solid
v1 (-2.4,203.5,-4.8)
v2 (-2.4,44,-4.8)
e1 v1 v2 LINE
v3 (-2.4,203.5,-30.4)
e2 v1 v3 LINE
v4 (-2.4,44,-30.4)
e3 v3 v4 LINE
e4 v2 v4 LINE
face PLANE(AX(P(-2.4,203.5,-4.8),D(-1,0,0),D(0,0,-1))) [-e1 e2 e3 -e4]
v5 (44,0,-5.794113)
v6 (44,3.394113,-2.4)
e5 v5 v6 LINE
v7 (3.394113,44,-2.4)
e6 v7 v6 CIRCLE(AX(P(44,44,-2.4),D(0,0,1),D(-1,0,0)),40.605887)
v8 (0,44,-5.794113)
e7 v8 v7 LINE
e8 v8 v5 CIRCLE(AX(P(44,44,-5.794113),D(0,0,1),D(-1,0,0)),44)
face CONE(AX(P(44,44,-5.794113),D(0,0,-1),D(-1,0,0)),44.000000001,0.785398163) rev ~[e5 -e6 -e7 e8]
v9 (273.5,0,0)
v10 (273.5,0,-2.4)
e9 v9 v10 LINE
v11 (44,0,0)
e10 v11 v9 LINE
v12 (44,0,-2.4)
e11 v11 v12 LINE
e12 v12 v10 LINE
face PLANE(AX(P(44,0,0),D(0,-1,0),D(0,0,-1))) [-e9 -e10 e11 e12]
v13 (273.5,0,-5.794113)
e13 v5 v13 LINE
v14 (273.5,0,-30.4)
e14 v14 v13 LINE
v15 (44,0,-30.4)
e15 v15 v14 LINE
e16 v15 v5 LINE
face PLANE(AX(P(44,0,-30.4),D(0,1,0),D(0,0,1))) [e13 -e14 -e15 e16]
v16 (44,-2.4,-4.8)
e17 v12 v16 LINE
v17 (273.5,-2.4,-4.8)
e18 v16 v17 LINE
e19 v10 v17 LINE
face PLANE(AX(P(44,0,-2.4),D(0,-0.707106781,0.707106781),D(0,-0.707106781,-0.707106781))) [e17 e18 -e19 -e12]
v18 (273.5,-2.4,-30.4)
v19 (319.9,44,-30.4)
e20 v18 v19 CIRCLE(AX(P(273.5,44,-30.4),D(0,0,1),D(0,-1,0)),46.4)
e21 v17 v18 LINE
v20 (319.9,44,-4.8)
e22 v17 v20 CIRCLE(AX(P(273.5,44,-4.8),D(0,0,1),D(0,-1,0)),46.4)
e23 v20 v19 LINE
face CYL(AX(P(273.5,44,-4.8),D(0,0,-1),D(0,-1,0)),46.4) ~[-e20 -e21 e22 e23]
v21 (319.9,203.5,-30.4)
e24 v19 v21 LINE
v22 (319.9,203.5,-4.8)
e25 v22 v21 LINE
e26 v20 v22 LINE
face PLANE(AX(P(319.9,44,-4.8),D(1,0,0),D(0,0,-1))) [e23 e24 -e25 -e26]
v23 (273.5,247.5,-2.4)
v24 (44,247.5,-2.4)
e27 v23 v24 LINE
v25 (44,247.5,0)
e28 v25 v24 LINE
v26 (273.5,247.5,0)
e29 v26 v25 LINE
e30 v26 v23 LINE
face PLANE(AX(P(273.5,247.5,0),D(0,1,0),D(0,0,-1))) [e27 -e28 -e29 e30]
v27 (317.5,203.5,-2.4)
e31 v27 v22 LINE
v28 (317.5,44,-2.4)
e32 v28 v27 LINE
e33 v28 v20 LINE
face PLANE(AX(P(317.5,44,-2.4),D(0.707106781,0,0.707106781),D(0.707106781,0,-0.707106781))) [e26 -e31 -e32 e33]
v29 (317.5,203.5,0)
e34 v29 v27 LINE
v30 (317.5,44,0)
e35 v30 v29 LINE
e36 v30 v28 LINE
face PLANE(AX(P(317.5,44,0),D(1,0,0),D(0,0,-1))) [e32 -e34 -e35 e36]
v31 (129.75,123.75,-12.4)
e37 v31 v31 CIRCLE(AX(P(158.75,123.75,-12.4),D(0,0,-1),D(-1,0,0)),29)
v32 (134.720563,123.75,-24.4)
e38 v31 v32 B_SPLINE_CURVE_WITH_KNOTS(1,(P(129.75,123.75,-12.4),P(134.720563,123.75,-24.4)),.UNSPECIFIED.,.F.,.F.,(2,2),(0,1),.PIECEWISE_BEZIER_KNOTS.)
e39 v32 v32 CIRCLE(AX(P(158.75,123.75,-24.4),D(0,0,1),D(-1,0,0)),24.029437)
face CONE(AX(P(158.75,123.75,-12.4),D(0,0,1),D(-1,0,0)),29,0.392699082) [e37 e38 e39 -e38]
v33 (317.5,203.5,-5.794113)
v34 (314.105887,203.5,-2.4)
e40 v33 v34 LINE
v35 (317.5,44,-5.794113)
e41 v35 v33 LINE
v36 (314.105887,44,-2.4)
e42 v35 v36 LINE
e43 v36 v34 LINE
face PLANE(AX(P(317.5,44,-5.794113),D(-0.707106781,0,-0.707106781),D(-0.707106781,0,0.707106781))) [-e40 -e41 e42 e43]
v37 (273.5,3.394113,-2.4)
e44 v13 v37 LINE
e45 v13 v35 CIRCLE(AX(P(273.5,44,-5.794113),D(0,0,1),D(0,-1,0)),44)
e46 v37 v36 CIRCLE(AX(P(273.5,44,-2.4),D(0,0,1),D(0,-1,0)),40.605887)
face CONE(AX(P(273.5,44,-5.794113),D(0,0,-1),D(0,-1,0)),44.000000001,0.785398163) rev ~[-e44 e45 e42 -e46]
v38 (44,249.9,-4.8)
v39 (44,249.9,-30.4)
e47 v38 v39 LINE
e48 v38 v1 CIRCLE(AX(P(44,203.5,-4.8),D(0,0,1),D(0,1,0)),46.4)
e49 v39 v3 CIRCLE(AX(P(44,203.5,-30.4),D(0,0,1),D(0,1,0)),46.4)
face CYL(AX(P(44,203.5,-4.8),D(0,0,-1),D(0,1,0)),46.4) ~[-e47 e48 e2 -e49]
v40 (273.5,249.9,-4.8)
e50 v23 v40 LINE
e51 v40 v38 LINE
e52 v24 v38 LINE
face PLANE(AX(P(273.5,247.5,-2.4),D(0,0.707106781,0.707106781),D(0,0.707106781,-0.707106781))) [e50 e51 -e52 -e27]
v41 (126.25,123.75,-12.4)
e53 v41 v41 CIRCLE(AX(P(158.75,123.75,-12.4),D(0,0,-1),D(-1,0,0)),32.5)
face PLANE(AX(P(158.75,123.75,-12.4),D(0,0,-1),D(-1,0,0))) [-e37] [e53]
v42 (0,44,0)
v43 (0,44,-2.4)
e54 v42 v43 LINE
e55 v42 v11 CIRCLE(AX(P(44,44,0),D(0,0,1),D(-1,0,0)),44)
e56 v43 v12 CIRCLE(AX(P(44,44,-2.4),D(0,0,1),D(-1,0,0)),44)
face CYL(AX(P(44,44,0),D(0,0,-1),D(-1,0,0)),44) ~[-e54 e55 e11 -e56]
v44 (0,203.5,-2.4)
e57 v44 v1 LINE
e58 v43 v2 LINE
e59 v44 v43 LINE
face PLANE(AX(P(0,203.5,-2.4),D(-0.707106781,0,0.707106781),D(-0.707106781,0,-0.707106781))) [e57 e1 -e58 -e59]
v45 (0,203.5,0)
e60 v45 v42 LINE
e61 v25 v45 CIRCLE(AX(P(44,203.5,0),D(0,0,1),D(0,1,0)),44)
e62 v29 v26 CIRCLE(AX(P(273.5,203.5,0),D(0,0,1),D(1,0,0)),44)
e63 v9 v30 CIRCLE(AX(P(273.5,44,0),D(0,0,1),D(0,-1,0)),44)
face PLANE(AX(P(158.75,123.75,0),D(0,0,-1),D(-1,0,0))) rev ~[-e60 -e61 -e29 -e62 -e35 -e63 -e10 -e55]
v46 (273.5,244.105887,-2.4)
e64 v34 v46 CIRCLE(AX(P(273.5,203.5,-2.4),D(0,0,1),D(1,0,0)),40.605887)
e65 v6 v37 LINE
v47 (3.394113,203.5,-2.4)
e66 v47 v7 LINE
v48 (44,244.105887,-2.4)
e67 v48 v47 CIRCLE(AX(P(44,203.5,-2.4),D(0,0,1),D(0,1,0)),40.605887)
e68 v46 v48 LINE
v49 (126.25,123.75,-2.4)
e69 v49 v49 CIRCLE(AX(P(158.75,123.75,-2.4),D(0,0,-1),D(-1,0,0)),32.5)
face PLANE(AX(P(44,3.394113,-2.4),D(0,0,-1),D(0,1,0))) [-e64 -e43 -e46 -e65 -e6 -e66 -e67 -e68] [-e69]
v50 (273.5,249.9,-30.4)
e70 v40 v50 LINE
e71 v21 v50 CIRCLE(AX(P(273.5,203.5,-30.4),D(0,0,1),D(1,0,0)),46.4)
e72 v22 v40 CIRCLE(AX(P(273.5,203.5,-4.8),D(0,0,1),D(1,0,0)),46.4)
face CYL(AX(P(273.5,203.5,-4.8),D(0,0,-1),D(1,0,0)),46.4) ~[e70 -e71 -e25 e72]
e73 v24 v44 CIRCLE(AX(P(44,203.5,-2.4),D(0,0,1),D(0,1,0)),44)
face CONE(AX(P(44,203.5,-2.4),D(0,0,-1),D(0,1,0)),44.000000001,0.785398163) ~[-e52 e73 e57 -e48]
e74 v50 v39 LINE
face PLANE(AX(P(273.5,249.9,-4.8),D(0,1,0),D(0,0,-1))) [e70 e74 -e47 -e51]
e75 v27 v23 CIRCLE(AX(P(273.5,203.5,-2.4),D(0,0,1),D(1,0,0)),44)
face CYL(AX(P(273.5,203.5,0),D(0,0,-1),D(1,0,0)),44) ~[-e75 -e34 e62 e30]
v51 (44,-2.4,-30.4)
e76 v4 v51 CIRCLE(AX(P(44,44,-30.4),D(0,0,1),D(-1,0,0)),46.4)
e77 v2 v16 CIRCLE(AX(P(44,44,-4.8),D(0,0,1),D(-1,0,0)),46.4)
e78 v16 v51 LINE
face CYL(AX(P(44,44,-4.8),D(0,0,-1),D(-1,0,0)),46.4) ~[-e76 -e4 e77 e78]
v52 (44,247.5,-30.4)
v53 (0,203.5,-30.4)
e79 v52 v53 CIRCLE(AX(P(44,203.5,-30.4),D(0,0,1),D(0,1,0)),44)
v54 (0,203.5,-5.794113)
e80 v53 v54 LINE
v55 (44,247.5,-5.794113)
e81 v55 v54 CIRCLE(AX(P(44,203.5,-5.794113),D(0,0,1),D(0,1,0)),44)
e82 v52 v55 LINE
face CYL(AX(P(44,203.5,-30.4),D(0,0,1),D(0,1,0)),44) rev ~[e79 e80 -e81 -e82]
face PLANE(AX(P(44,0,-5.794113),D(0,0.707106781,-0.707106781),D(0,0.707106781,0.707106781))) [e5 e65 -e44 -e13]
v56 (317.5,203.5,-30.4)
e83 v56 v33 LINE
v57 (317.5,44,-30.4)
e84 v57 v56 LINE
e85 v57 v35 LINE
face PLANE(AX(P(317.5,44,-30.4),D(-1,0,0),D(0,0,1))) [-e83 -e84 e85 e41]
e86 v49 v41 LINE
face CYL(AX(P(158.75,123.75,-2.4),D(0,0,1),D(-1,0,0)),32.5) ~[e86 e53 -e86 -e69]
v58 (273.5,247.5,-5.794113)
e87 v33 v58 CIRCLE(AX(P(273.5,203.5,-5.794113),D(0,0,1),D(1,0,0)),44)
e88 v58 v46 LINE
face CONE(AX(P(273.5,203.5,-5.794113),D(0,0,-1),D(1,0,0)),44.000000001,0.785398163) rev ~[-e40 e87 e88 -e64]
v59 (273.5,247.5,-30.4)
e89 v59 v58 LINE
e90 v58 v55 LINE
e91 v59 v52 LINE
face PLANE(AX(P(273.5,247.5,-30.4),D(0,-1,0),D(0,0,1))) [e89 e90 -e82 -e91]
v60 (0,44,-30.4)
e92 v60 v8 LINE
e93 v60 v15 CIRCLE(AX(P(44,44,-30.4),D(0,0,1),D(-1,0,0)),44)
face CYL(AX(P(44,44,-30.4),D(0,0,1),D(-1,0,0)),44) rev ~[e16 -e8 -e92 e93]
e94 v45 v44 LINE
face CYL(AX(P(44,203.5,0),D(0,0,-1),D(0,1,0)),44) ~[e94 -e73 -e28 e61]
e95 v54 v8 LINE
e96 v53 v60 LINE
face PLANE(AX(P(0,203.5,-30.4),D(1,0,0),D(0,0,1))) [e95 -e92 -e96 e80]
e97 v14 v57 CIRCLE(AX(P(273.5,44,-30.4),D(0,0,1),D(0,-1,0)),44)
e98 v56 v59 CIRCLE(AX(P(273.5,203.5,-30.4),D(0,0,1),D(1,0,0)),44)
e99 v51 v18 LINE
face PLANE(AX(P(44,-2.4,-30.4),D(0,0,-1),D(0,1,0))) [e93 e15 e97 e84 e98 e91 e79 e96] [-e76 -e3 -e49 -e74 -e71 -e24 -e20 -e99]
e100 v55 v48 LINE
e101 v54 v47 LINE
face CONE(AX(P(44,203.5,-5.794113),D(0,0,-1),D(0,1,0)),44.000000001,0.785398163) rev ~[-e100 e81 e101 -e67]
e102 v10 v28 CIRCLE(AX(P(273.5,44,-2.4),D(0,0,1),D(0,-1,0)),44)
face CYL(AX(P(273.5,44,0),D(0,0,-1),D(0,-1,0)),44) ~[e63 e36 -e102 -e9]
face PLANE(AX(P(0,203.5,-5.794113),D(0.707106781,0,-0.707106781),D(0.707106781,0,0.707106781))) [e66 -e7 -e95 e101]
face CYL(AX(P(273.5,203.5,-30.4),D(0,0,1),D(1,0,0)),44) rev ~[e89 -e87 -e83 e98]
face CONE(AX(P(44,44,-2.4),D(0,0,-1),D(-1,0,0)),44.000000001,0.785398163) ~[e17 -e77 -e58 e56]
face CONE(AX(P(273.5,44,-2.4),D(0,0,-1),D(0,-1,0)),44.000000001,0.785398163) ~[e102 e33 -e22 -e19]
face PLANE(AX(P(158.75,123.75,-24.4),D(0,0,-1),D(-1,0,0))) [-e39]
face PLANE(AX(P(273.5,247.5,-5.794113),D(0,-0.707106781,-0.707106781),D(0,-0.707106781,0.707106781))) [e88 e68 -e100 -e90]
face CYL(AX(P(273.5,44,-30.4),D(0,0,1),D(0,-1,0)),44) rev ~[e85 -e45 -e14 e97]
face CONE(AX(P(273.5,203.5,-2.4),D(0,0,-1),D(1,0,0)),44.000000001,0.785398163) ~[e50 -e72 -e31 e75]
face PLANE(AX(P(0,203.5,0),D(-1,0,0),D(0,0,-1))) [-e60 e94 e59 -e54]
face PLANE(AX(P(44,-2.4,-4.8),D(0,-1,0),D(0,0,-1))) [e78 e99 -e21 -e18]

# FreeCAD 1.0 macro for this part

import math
import FreeCAD as App
import Part
import Sketcher
Q = App.Units.Quantity

doc = App.newDocument("Part")
params = doc.addObject("Spreadsheet::Sheet", "Params")
for row, (alias, value) in enumerate([
    ("sketch1_width", "7 mm"),
    ("sketch1_width2", "2.4 mm"),
    ("sketch1_height", "25.6 mm"),
    ("sketch1_length", "4.8 mm"),
    ("sketch2_radius", "44 mm"),
    ("sketch2_width", "229.5 mm"),
    ("sketch2_height", "159.5 mm"),
    ("sketch3_radius", "37 mm"),
    ("sketch3_width", "229.5 mm"),
    ("sketch3_height", "159.5 mm"),
    ("pad1_length", "2.4 mm"),
    ("sketch4_diameter", "65 mm"),
    ("pad2_length", "10 mm"),
    ("sketch5_diameter", "58 mm"),
    ("pad3_length", "12 mm"),
    ("pad3_taper", "-22.5 deg"),
], start=1):
    params.set(f"A{row}", alias)
    params.set(f"B{row}", "=" + value)
    params.setAlias(f"B{row}", alias)

body = doc.addObject("PartDesign::Body", "Body")

# Sketch on YZ plane
sketch1 = body.newObject("Sketcher::SketchObject", "Sketch")
sketch1.AttachmentSupport = (doc.getObject("YZ_Plane"), [""])
sketch1.MapMode = "FlatFace"
sketch1.AttachmentOffset = App.Placement(App.Vector(0, 0, 44), App.Rotation())
sketch1.addGeometry(Part.LineSegment(App.Vector(0, 0, 0), App.Vector(0, -2.4, 0)), False)
sketch1.addGeometry(Part.LineSegment(App.Vector(0, -2.4, 0), App.Vector(-2.4, -4.8, 0)), False)
sketch1.addGeometry(Part.LineSegment(App.Vector(-2.4, -4.8, 0), App.Vector(-2.4, -30.4, 0)), False)
sketch1.addGeometry(Part.LineSegment(App.Vector(-2.4, -30.4, 0), App.Vector(0, -30.4, 0)), False)
sketch1.addGeometry(Part.LineSegment(App.Vector(0, -30.4, 0), App.Vector(0, -5.8, 0)), False)
sketch1.addGeometry(Part.LineSegment(App.Vector(0, -5.8, 0), App.Vector(3.4, -2.4, 0)), False)
sketch1.addGeometry(Part.LineSegment(App.Vector(3.4, -2.4, 0), App.Vector(7, -2.4, 0)), False)
sketch1.addGeometry(Part.LineSegment(App.Vector(7, -2.4, 0), App.Vector(7, 0, 0)), False)
sketch1.addGeometry(Part.LineSegment(App.Vector(7, 0, 0), App.Vector(0, 0, 0)), False)
sketch1.addConstraint(Sketcher.Constraint("Coincident", 0, 2, 1, 1))
sketch1.addConstraint(Sketcher.Constraint("Coincident", 1, 2, 2, 1))
sketch1.addConstraint(Sketcher.Constraint("Coincident", 2, 2, 3, 1))
sketch1.addConstraint(Sketcher.Constraint("Coincident", 3, 2, 4, 1))
sketch1.addConstraint(Sketcher.Constraint("Coincident", 4, 2, 5, 1))
sketch1.addConstraint(Sketcher.Constraint("Coincident", 5, 2, 6, 1))
sketch1.addConstraint(Sketcher.Constraint("Coincident", 6, 2, 7, 1))
sketch1.addConstraint(Sketcher.Constraint("Coincident", 7, 2, 8, 1))
sketch1.addConstraint(Sketcher.Constraint("Coincident", 8, 2, 0, 1))
sketch1.addConstraint(Sketcher.Constraint("Vertical", 0))
sketch1.addConstraint(Sketcher.Constraint("Vertical", 2))
sketch1.addConstraint(Sketcher.Constraint("Horizontal", 3))
sketch1.addConstraint(Sketcher.Constraint("Vertical", 4))
sketch1.addConstraint(Sketcher.Constraint("Horizontal", 6))
sketch1.addConstraint(Sketcher.Constraint("Vertical", 7))
sketch1.addConstraint(Sketcher.Constraint("Horizontal", 8))
sketch1.addConstraint(Sketcher.Constraint("Coincident", 8, 2, -1, 1))
sketch1.addConstraint(Sketcher.Constraint("PointOnObject", 3, 2, -2))
sketch1.addConstraint(Sketcher.Constraint("Parallel", 1, 5))
sketch1.addConstraint(Sketcher.Constraint("Horizontal", 0, 2, 5, 2))
sketch1.addConstraint(Sketcher.Constraint("Equal", 3, 0))
sketch1.addConstraint(Sketcher.Constraint("DistanceX", 8, 2, 8, 1, Q("7 mm")))
sketch1.addConstraint(Sketcher.Constraint("Angle", 1, Q("-135 deg")))
sketch1.addConstraint(Sketcher.Constraint("DistanceX", 3, 1, 3, 2, Q("2.4 mm")))
sketch1.addConstraint(Sketcher.Constraint("DistanceY", 2, 2, 2, 1, Q("25.6 mm")))
sketch1.addConstraint(Sketcher.Constraint("Distance", 5, Q("4.8 mm")))
sketch1.setExpression("Constraints[21]", "Params.sketch1_width")
sketch1.setExpression("Constraints[23]", "Params.sketch1_width2")
sketch1.setExpression("Constraints[24]", "Params.sketch1_height")
sketch1.setExpression("Constraints[25]", "Params.sketch1_length")

# Sketch on XY plane
sketch2 = body.newObject("Sketcher::SketchObject", "Sketch001")
sketch2.AttachmentSupport = (doc.getObject("XY_Plane"), [""])
sketch2.MapMode = "FlatFace"
sketch2.addGeometry(Part.LineSegment(App.Vector(44, 0, 0), App.Vector(274, 0, 0)), False)
sketch2.addGeometry(Part.ArcOfCircle(Part.Circle(App.Vector(273, 44, 0), App.Vector(0, 0, 1), 44), math.radians(-90), math.radians(0)), False)
sketch2.addGeometry(Part.LineSegment(App.Vector(318, 44, 0), App.Vector(318, 204, 0)), False)
sketch2.addGeometry(Part.ArcOfCircle(Part.Circle(App.Vector(273, 203, 0), App.Vector(0, 0, 1), 44), math.radians(0), math.radians(90)), False)
sketch2.addGeometry(Part.LineSegment(App.Vector(274, 248, 0), App.Vector(44, 248, 0)), False)
sketch2.addGeometry(Part.ArcOfCircle(Part.Circle(App.Vector(44, 203, 0), App.Vector(0, 0, 1), 44), math.radians(90), math.radians(180)), False)
sketch2.addGeometry(Part.LineSegment(App.Vector(0, 204, 0), App.Vector(0, 44, 0)), False)
sketch2.addGeometry(Part.ArcOfCircle(Part.Circle(App.Vector(44, 44, 0), App.Vector(0, 0, 1), 44), math.radians(-180), math.radians(-90)), False)
sketch2.addConstraint(Sketcher.Constraint("Tangent", 0, 2, 1, 1))
sketch2.addConstraint(Sketcher.Constraint("Tangent", 1, 2, 2, 1))
sketch2.addConstraint(Sketcher.Constraint("Tangent", 2, 2, 3, 1))
sketch2.addConstraint(Sketcher.Constraint("Tangent", 3, 2, 4, 1))
sketch2.addConstraint(Sketcher.Constraint("Tangent", 4, 2, 5, 1))
sketch2.addConstraint(Sketcher.Constraint("Tangent", 5, 2, 6, 1))
sketch2.addConstraint(Sketcher.Constraint("Tangent", 6, 2, 7, 1))
sketch2.addConstraint(Sketcher.Constraint("Tangent", 7, 2, 0, 1))
sketch2.addConstraint(Sketcher.Constraint("Horizontal", 0))
sketch2.addConstraint(Sketcher.Constraint("Vertical", 2))
sketch2.addConstraint(Sketcher.Constraint("Horizontal", 4))
sketch2.addConstraint(Sketcher.Constraint("Vertical", 6))
sketch2.addConstraint(Sketcher.Constraint("Equal", 1, 3))
sketch2.addConstraint(Sketcher.Constraint("Equal", 3, 5))
sketch2.addConstraint(Sketcher.Constraint("Equal", 5, 7))
sketch2.addConstraint(Sketcher.Constraint("PointOnObject", 0, 2, -1))
sketch2.addConstraint(Sketcher.Constraint("PointOnObject", 5, 2, -2))
sketch2.addConstraint(Sketcher.Constraint("Radius", 1, Q("44 mm")))
sketch2.addConstraint(Sketcher.Constraint("DistanceX", 0, 1, 0, 2, Q("229.5 mm")))
sketch2.addConstraint(Sketcher.Constraint("DistanceY", 2, 1, 2, 2, Q("159.5 mm")))
sketch2.setExpression("Constraints[17]", "Params.sketch2_radius")
sketch2.setExpression("Constraints[18]", "Params.sketch2_width")
sketch2.setExpression("Constraints[19]", "Params.sketch2_height")
doc.recompute()

additivepipe = body.newObject("PartDesign::AdditivePipe", "AdditivePipe")
additivepipe.Profile = sketch1
additivepipe.Spine = (sketch2, ["Edge1", "Edge2", "Edge3", "Edge4", "Edge5", "Edge6", "Edge7", "Edge8"])

# Sketch on XY plane
sketch3 = body.newObject("Sketcher::SketchObject", "Sketch002")
sketch3.AttachmentSupport = (doc.getObject("XY_Plane"), [""])
sketch3.MapMode = "FlatFace"
sketch3.addGeometry(Part.LineSegment(App.Vector(274, 240, 0), App.Vector(44, 240, 0)), False)
sketch3.addGeometry(Part.ArcOfCircle(Part.Circle(App.Vector(44, 204, 0), App.Vector(0, 0, 1), 37), math.radians(90), math.radians(180)), False)
sketch3.addGeometry(Part.LineSegment(App.Vector(7, 204, 0), App.Vector(7, 44, 0)), False)
sketch3.addGeometry(Part.ArcOfCircle(Part.Circle(App.Vector(44, 44, 0), App.Vector(0, 0, 1), 37), math.radians(180), math.radians(270)), False)
sketch3.addGeometry(Part.LineSegment(App.Vector(44, 7, 0), App.Vector(274, 7, 0)), False)
sketch3.addGeometry(Part.ArcOfCircle(Part.Circle(App.Vector(274, 44, 0), App.Vector(0, 0, 1), 37), math.radians(-90), math.radians(0)), False)
sketch3.addGeometry(Part.LineSegment(App.Vector(310, 44, 0), App.Vector(310, 204, 0)), False)
sketch3.addGeometry(Part.ArcOfCircle(Part.Circle(App.Vector(274, 204, 0), App.Vector(0, 0, 1), 37), math.radians(0), math.radians(90)), False)
sketch3.addConstraint(Sketcher.Constraint("Tangent", 0, 2, 1, 1))
sketch3.addConstraint(Sketcher.Constraint("Tangent", 1, 2, 2, 1))
sketch3.addConstraint(Sketcher.Constraint("Tangent", 2, 2, 3, 1))
sketch3.addConstraint(Sketcher.Constraint("Tangent", 3, 2, 4, 1))
sketch3.addConstraint(Sketcher.Constraint("Tangent", 4, 2, 5, 1))
sketch3.addConstraint(Sketcher.Constraint("Tangent", 5, 2, 6, 1))
sketch3.addConstraint(Sketcher.Constraint("Tangent", 6, 2, 7, 1))
sketch3.addConstraint(Sketcher.Constraint("Tangent", 7, 2, 0, 1))
sketch3.addConstraint(Sketcher.Constraint("Horizontal", 0))
sketch3.addConstraint(Sketcher.Constraint("Vertical", 2))
sketch3.addConstraint(Sketcher.Constraint("Horizontal", 4))
sketch3.addConstraint(Sketcher.Constraint("Vertical", 6))
sketch3.addConstraint(Sketcher.Constraint("Equal", 1, 3))
sketch3.addConstraint(Sketcher.Constraint("Equal", 3, 5))
sketch3.addConstraint(Sketcher.Constraint("Equal", 5, 7))
sketch3.addConstraint(Sketcher.Constraint("Radius", 1, Q("37 mm")))
sketch3.addConstraint(Sketcher.Constraint("DistanceX", 0, 2, 0, 1, Q("229.5 mm")))
sketch3.addConstraint(Sketcher.Constraint("DistanceY", 2, 2, 2, 1, Q("159.5 mm")))
sketch3.addConstraint(Sketcher.Constraint("DistanceX", -1, 1, 1, 3, Q("44 mm")))
sketch3.addConstraint(Sketcher.Constraint("DistanceY", -1, 1, 3, 3, Q("44 mm")))
sketch3.setExpression("Constraints[15]", "Params.sketch3_radius")
sketch3.setExpression("Constraints[16]", "Params.sketch3_width")
sketch3.setExpression("Constraints[17]", "Params.sketch3_height")
pad1 = body.newObject("PartDesign::Pad", "Pad")
pad1.Profile = sketch3
pad1.setExpression("Length", "Params.pad1_length")
pad1.Reversed = True

# Sketch on XY plane
sketch4 = body.newObject("Sketcher::SketchObject", "Sketch003")
sketch4.AttachmentSupport = (doc.getObject("XY_Plane"), [""])
sketch4.MapMode = "FlatFace"
sketch4.AttachmentOffset = App.Placement(App.Vector(0, 0, -2.4), App.Rotation())
sketch4.addGeometry(Part.Circle(App.Vector(159, 124, 0), App.Vector(0, 0, 1), 32), False)
sketch4.addConstraint(Sketcher.Constraint("Diameter", 0, Q("65 mm")))
sketch4.addConstraint(Sketcher.Constraint("DistanceX", -1, 1, 0, 3, Q("158.75 mm")))
sketch4.addConstraint(Sketcher.Constraint("DistanceY", -1, 1, 0, 3, Q("123.75 mm")))
sketch4.setExpression("Constraints[0]", "Params.sketch4_diameter")
pad2 = body.newObject("PartDesign::Pad", "Pad001")
pad2.Profile = sketch4
pad2.setExpression("Length", "Params.pad2_length")
pad2.Reversed = True

# Sketch on XY plane
sketch5 = body.newObject("Sketcher::SketchObject", "Sketch004")
sketch5.AttachmentSupport = (doc.getObject("XY_Plane"), [""])
sketch5.MapMode = "FlatFace"
sketch5.AttachmentOffset = App.Placement(App.Vector(0, 0, -12.4), App.Rotation())
sketch5.addGeometry(Part.Circle(App.Vector(159, 124, 0), App.Vector(0, 0, 1), 29), False)
sketch5.addConstraint(Sketcher.Constraint("Diameter", 0, Q("58 mm")))
sketch5.addConstraint(Sketcher.Constraint("DistanceX", -1, 1, 0, 3, Q("158.75 mm")))
sketch5.addConstraint(Sketcher.Constraint("DistanceY", -1, 1, 0, 3, Q("123.75 mm")))
sketch5.setExpression("Constraints[0]", "Params.sketch5_diameter")
pad3 = body.newObject("PartDesign::Pad", "Pad002")
pad3.Profile = sketch5
pad3.setExpression("Length", "Params.pad3_length")
pad3.Reversed = True
pad3.setExpression("TaperAngle", "Params.pad3_taper")

doc.recompute()
